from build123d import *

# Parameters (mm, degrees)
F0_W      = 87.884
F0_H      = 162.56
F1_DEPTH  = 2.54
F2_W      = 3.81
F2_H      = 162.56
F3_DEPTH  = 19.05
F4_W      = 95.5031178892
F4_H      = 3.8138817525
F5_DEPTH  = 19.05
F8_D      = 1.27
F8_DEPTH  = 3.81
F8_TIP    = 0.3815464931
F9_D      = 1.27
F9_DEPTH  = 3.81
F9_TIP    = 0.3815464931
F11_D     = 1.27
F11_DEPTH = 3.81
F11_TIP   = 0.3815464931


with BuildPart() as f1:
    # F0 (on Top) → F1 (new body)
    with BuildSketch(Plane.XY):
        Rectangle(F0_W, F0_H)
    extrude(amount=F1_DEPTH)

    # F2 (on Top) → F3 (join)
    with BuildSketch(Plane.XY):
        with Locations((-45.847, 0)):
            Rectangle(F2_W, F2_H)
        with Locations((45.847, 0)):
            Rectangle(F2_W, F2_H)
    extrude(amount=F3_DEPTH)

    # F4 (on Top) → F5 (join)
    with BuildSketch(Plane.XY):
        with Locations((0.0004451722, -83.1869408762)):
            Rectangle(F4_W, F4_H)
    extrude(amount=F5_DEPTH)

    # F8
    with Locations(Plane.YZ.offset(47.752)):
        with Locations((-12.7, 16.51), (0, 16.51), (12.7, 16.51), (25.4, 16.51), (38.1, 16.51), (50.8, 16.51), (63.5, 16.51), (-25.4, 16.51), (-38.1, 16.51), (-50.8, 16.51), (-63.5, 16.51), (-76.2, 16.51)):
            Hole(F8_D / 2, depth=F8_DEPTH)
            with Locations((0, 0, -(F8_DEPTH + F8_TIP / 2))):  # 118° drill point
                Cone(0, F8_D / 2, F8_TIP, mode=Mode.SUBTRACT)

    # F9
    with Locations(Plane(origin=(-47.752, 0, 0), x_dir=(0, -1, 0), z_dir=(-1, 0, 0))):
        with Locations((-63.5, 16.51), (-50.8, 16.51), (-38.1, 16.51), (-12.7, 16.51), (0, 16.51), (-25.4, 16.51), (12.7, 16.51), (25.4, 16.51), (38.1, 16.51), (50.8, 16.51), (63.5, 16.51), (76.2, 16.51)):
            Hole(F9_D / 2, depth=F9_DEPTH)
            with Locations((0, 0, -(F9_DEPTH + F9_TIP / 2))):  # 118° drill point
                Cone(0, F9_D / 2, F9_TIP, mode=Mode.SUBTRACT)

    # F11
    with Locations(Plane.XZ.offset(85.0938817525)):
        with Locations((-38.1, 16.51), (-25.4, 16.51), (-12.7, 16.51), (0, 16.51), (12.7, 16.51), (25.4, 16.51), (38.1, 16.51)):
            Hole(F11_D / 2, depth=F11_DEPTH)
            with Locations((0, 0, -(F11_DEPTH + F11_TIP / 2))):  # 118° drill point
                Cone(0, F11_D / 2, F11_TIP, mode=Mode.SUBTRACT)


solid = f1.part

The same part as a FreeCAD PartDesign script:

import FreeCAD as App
import Part
import Sketcher
Q = App.Units.Quantity


def add_polygon(sketch, points):
    """Adds a closed chain of lines whose ends are joined by coincident constraints."""
    first, n = sketch.GeometryCount, len(points)
    for a, b in zip(points, points[1:] + points[:1]):
        sketch.addGeometry(Part.LineSegment(App.Vector(*a, 0), App.Vector(*b, 0)), False)
    for i in range(n):
        sketch.addConstraint(Sketcher.Constraint("Coincident", first + i, 2, first + (i + 1) % n, 1))

doc = App.newDocument("Part")
body = doc.addObject("PartDesign::Body", "Body")

sketch1 = doc.addObject("Sketcher::SketchObject", "Sketch")
body.addObject(sketch1)
sketch1.AttachmentSupport = (doc.XY_Plane, [""])
sketch1.MapMode = "FlatFace"
add_polygon(sketch1, [(-44, 81), (-44, -81), (44, -81), (44, 81)])
sketch1.addConstraint([
    Sketcher.Constraint("Vertical", 0),
    Sketcher.Constraint("Horizontal", 1),
    Sketcher.Constraint("Vertical", 2),
    Sketcher.Constraint("Horizontal", 3),
    Sketcher.Constraint("Symmetric", 0, 2, 2, 2, -1, 1),
    Sketcher.Constraint("DistanceY", 0, 2, 0, 1, Q("6.4 in")),
    Sketcher.Constraint("DistanceX", 1, 1, 1, 2, Q("3.46 in")),
])
pad1 = doc.addObject("PartDesign::Pad", "Pad")
body.addObject(pad1)
pad1.Profile = sketch1
pad1.Length = Q("0.1 in")

sketch2 = doc.addObject("Sketcher::SketchObject", "Sketch001")
body.addObject(sketch2)
sketch2.AttachmentSupport = (doc.XY_Plane, [""])
sketch2.MapMode = "FlatFace"
add_polygon(sketch2, [(-47.8, 81.3), (-47.8, -81.3), (-43.9, -81.3), (-43.9, 81.3)])
add_polygon(sketch2, [(43.9, 81.3), (43.9, -81.3), (47.8, -81.3), (47.8, 81.3)])
sketch2.addConstraint([
    Sketcher.Constraint("Vertical", 0),
    Sketcher.Constraint("Horizontal", 1),
    Sketcher.Constraint("Vertical", 2),
    Sketcher.Constraint("Horizontal", 3),
    Sketcher.Constraint("Vertical", 4),
    Sketcher.Constraint("Horizontal", 5),
    Sketcher.Constraint("Vertical", 6),
    Sketcher.Constraint("Horizontal", 7),
    Sketcher.Constraint("Symmetric", 2, 2, 4, 2, -1, 1),
    Sketcher.Constraint("Symmetric", 0, 2, 6, 2, -1, 1),
    Sketcher.Constraint("Horizontal", 1, 2, 4, 2),
    Sketcher.Constraint("DistanceY", 0, 2, 0, 1, Q("6.4 in")),
    Sketcher.Constraint("DistanceX", 1, 1, 1, 2, Q("0.15 in")),
    Sketcher.Constraint("DistanceX", 0, 2, -1, 1, Q("1.88 in")),
])
pad2 = doc.addObject("PartDesign::Pad", "Pad001")
body.addObject(pad2)
pad2.Profile = sketch2
pad2.Length = Q("0.75 in")

sketch3 = doc.addObject("Sketcher::SketchObject", "Sketch002")
body.addObject(sketch3)
sketch3.AttachmentSupport = (doc.XY_Plane, [""])
sketch3.MapMode = "FlatFace"
add_polygon(sketch3, [(-47.8, -81.3), (-47.8, -85.1), (47.8, -85.1), (47.8, -81.3)])
sketch3.addConstraint([
    Sketcher.Constraint("Vertical", 0),
    Sketcher.Constraint("Horizontal", 1),
    Sketcher.Constraint("Vertical", 2),
    Sketcher.Constraint("Horizontal", 3),
    Sketcher.Constraint("DistanceY", 2, 2, -1, 1, Q("3.2 in")),
    Sketcher.Constraint("DistanceX", -1, 1, 1, 2, Q("1.8800002 in")),
    Sketcher.Constraint("DistanceY", 0, 2, 0, 1, 3.813882),
    Sketcher.Constraint("DistanceX", 1, 1, 1, 2, 95.503118),
])
pad3 = doc.addObject("PartDesign::Pad", "Pad002")
body.addObject(pad3)
pad3.Profile = sketch3
pad3.Length = Q("0.75 in")

sketch4 = doc.addObject("Sketcher::SketchObject", "Sketch003")
body.addObject(sketch4)
sketch4.AttachmentSupport = (doc.YZ_Plane, [""])
sketch4.MapMode = "FlatFace"
sketch4.AttachmentOffset = App.Placement(App.Vector(0, 0, 1.88 * 25.4), App.Rotation())
sketch4.addGeometry([
    Part.Circle(App.Vector(-12.7, 16.5, 0), App.Vector(0, 0, 1), 0.6),
    Part.Circle(App.Vector(0, 16.5, 0), App.Vector(0, 0, 1), 0.6),
    Part.Circle(App.Vector(12.7, 16.5, 0), App.Vector(0, 0, 1), 0.6),
    Part.Circle(App.Vector(25.4, 16.5, 0), App.Vector(0, 0, 1), 0.6),
    Part.Circle(App.Vector(38.1, 16.5, 0), App.Vector(0, 0, 1), 0.6),
    Part.Circle(App.Vector(50.8, 16.5, 0), App.Vector(0, 0, 1), 0.6),
    Part.Circle(App.Vector(63.5, 16.5, 0), App.Vector(0, 0, 1), 0.6),
    Part.Circle(App.Vector(-25.4, 16.5, 0), App.Vector(0, 0, 1), 0.6),
    Part.Circle(App.Vector(-38.1, 16.5, 0), App.Vector(0, 0, 1), 0.6),
    Part.Circle(App.Vector(-50.8, 16.5, 0), App.Vector(0, 0, 1), 0.6),
    Part.Circle(App.Vector(-63.5, 16.5, 0), App.Vector(0, 0, 1), 0.6),
    Part.Circle(App.Vector(-76.2, 16.5, 0), App.Vector(0, 0, 1), 0.6),
], False)
sketch4.addConstraint([
    Sketcher.Constraint("Equal", 0, 1),
    Sketcher.Constraint("Equal", 1, 2),
    Sketcher.Constraint("Equal", 2, 3),
    Sketcher.Constraint("Equal", 3, 4),
    Sketcher.Constraint("Equal", 4, 5),
    Sketcher.Constraint("Equal", 5, 6),
    Sketcher.Constraint("Equal", 6, 7),
    Sketcher.Constraint("Equal", 7, 8),
    Sketcher.Constraint("Equal", 8, 9),
    Sketcher.Constraint("Equal", 9, 10),
    Sketcher.Constraint("Equal", 10, 11),
    Sketcher.Constraint("Symmetric", 0, 3, 2, 3, -2),
    Sketcher.Constraint("Symmetric", 3, 3, 7, 3, -2),
    Sketcher.Constraint("Symmetric", 4, 3, 8, 3, -2),
    Sketcher.Constraint("Symmetric", 5, 3, 9, 3, -2),
    Sketcher.Constraint("Symmetric", 6, 3, 10, 3, -2),
    Sketcher.Constraint("PointOnObject", 1, 3, -2),
    Sketcher.Constraint("Horizontal", 0, 3, 1, 3),
    Sketcher.Constraint("Horizontal", 2, 3, 3, 3),
    Sketcher.Constraint("Horizontal", 3, 3, 4, 3),
    Sketcher.Constraint("Horizontal", 4, 3, 5, 3),
    Sketcher.Constraint("Horizontal", 5, 3, 6, 3),
    Sketcher.Constraint("Horizontal", 10, 3, 11, 3),
    Sketcher.Constraint("Diameter", 0, Q("0.05 in")),
    Sketcher.Constraint("DistanceX", -1, 1, 3, 3, Q("1 in")),
    Sketcher.Constraint("DistanceX", -1, 1, 5, 3, Q("2 in")),
    Sketcher.Constraint("DistanceX", 11, 3, -1, 1, Q("3 in")),
    Sketcher.Constraint("DistanceX", 0, 3, 2, 3, Q("1 in")),
    Sketcher.Constraint("DistanceX", 2, 3, 4, 3, Q("1 in")),
    Sketcher.Constraint("DistanceX", 4, 3, 6, 3, Q("1 in")),
    Sketcher.Constraint("DistanceY", -1, 1, 0, 3, Q("0.65 in")),
])
doc.recompute()
hole = doc.addObject("PartDesign::Hole", "Hole")
body.addObject(hole)
hole.Profile = sketch4
hole.ThreadType = "None"
hole.Diameter = Q("0.05 in")
hole.DepthType = "Dimension"
hole.Depth = Q("0.15 in")
hole.DrillPoint = "Angled"
hole.DrillPointAngle = 118

sketch5 = doc.addObject("Sketcher::SketchObject", "Sketch004")
body.addObject(sketch5)
sketch5.AttachmentSupport = (doc.YZ_Plane, [""])
sketch5.MapMode = "FlatFace"
sketch5.AttachmentOffset = App.Placement(App.Vector(0, 0, -1.88 * 25.4), App.Rotation())
sketch5.addGeometry([
    Part.Circle(App.Vector(63.5, 16.5, 0), App.Vector(0, 0, 1), 0.6),
    Part.Circle(App.Vector(50.8, 16.5, 0), App.Vector(0, 0, 1), 0.6),
    Part.Circle(App.Vector(38.1, 16.5, 0), App.Vector(0, 0, 1), 0.6),
    Part.Circle(App.Vector(12.7, 16.5, 0), App.Vector(0, 0, 1), 0.6),
    Part.Circle(App.Vector(0, 16.5, 0), App.Vector(0, 0, 1), 0.6),
    Part.Circle(App.Vector(25.4, 16.5, 0), App.Vector(0, 0, 1), 0.6),
    Part.Circle(App.Vector(-12.7, 16.5, 0), App.Vector(0, 0, 1), 0.6),
    Part.Circle(App.Vector(-25.4, 16.5, 0), App.Vector(0, 0, 1), 0.6),
    Part.Circle(App.Vector(-38.1, 16.5, 0), App.Vector(0, 0, 1), 0.6),
    Part.Circle(App.Vector(-50.8, 16.5, 0), App.Vector(0, 0, 1), 0.6),
    Part.Circle(App.Vector(-63.5, 16.5, 0), App.Vector(0, 0, 1), 0.6),
    Part.Circle(App.Vector(-76.2, 16.5, 0), App.Vector(0, 0, 1), 0.6),
], False)
sketch5.addConstraint([
    Sketcher.Constraint("Equal", 0, 1),
    Sketcher.Constraint("Equal", 1, 2),
    Sketcher.Constraint("Equal", 2, 3),
    Sketcher.Constraint("Equal", 3, 4),
    Sketcher.Constraint("Equal", 4, 5),
    Sketcher.Constraint("Equal", 5, 6),
    Sketcher.Constraint("Equal", 6, 7),
    Sketcher.Constraint("Equal", 7, 8),
    Sketcher.Constraint("Equal", 8, 9),
    Sketcher.Constraint("Equal", 9, 10),
    Sketcher.Constraint("Equal", 10, 11),
    Sketcher.Constraint("Symmetric", 3, 3, 6, 3, -2),
    Sketcher.Constraint("Symmetric", 5, 3, 7, 3, -2),
    Sketcher.Constraint("Symmetric", 2, 3, 8, 3, -2),
    Sketcher.Constraint("Symmetric", 1, 3, 9, 3, -2),
    Sketcher.Constraint("Symmetric", 0, 3, 10, 3, -2),
    Sketcher.Constraint("PointOnObject", 4, 3, -2),
    Sketcher.Constraint("Horizontal", 0, 3, 1, 3),
    Sketcher.Constraint("Horizontal", 1, 3, 2, 3),
    Sketcher.Constraint("Horizontal", 2, 3, 3, 3),
    Sketcher.Constraint("Horizontal", 3, 3, 4, 3),
    Sketcher.Constraint("Horizontal", 4, 3, 5, 3),
    Sketcher.Constraint("Horizontal", 10, 3, 11, 3),
    Sketcher.Constraint("Diameter", 0, Q("0.05 in")),
    Sketcher.Constraint("DistanceX", -1, 1, 1, 3, Q("2 in")),
    Sketcher.Constraint("DistanceX", -1, 1, 5, 3, Q("1 in")),
    Sketcher.Constraint("DistanceX", 11, 3, -1, 1, Q("3 in")),
    Sketcher.Constraint("DistanceX", 2, 3, 0, 3, Q("1 in")),
    Sketcher.Constraint("DistanceX", 3, 3, 2, 3, Q("1 in")),
    Sketcher.Constraint("DistanceX", 6, 3, 3, 3, Q("1 in")),
    Sketcher.Constraint("DistanceY", -1, 1, 0, 3, Q("0.65 in")),
])
doc.recompute()
hole2 = doc.addObject("PartDesign::Hole", "Hole001")
body.addObject(hole2)
hole2.Profile = sketch5
hole2.ThreadType = "None"
hole2.Diameter = Q("0.05 in")
hole2.DepthType = "Dimension"
hole2.Depth = Q("0.15 in")
hole2.DrillPoint = "Angled"
hole2.DrillPointAngle = 118
hole2.Reversed = True

sketch6 = doc.addObject("Sketcher::SketchObject", "Sketch005")
body.addObject(sketch6)
sketch6.AttachmentSupport = (doc.XZ_Plane, [""])
sketch6.MapMode = "FlatFace"
sketch6.AttachmentOffset = App.Placement(App.Vector(0, 0, 85.093882), App.Rotation())
sketch6.addGeometry([
    Part.Circle(App.Vector(-38.1, 16.5, 0), App.Vector(0, 0, 1), 0.6),
    Part.Circle(App.Vector(-25.4, 16.5, 0), App.Vector(0, 0, 1), 0.6),
    Part.Circle(App.Vector(-12.7, 16.5, 0), App.Vector(0, 0, 1), 0.6),
    Part.Circle(App.Vector(0, 16.5, 0), App.Vector(0, 0, 1), 0.6),
    Part.Circle(App.Vector(12.7, 16.5, 0), App.Vector(0, 0, 1), 0.6),
    Part.Circle(App.Vector(25.4, 16.5, 0), App.Vector(0, 0, 1), 0.6),
    Part.Circle(App.Vector(38.1, 16.5, 0), App.Vector(0, 0, 1), 0.6),
], False)
sketch6.addConstraint([
    Sketcher.Constraint("Equal", 0, 1),
    Sketcher.Constraint("Equal", 1, 2),
    Sketcher.Constraint("Equal", 2, 3),
    Sketcher.Constraint("Equal", 3, 4),
    Sketcher.Constraint("Equal", 4, 5),
    Sketcher.Constraint("Equal", 5, 6),
    Sketcher.Constraint("Symmetric", 2, 3, 4, 3, -2),
    Sketcher.Constraint("Symmetric", 1, 3, 5, 3, -2),
    Sketcher.Constraint("Symmetric", 0, 3, 6, 3, -2),
    Sketcher.Constraint("PointOnObject", 3, 3, -2),
    Sketcher.Constraint("Horizontal", 0, 3, 1, 3),
    Sketcher.Constraint("Horizontal", 1, 3, 2, 3),
    Sketcher.Constraint("Horizontal", 2, 3, 3, 3),
    Sketcher.Constraint("Diameter", 0, Q("0.05 in")),
    Sketcher.Constraint("DistanceX", 1, 3, -1, 1, Q("1 in")),
    Sketcher.Constraint("DistanceX", 0, 3, 2, 3, Q("1 in")),
    Sketcher.Constraint("DistanceX", 2, 3, 4, 3, Q("1 in")),
    Sketcher.Constraint("DistanceY", -1, 1, 0, 3, Q("0.65 in")),
])
doc.recompute()
hole3 = doc.addObject("PartDesign::Hole", "Hole002")
body.addObject(hole3)
hole3.Profile = sketch6
hole3.ThreadType = "None"
hole3.Diameter = Q("0.05 in")
hole3.DepthType = "Dimension"
hole3.Depth = Q("0.15 in")
hole3.DrillPoint = "Angled"
hole3.DrillPointAngle = 118

doc.recompute()
